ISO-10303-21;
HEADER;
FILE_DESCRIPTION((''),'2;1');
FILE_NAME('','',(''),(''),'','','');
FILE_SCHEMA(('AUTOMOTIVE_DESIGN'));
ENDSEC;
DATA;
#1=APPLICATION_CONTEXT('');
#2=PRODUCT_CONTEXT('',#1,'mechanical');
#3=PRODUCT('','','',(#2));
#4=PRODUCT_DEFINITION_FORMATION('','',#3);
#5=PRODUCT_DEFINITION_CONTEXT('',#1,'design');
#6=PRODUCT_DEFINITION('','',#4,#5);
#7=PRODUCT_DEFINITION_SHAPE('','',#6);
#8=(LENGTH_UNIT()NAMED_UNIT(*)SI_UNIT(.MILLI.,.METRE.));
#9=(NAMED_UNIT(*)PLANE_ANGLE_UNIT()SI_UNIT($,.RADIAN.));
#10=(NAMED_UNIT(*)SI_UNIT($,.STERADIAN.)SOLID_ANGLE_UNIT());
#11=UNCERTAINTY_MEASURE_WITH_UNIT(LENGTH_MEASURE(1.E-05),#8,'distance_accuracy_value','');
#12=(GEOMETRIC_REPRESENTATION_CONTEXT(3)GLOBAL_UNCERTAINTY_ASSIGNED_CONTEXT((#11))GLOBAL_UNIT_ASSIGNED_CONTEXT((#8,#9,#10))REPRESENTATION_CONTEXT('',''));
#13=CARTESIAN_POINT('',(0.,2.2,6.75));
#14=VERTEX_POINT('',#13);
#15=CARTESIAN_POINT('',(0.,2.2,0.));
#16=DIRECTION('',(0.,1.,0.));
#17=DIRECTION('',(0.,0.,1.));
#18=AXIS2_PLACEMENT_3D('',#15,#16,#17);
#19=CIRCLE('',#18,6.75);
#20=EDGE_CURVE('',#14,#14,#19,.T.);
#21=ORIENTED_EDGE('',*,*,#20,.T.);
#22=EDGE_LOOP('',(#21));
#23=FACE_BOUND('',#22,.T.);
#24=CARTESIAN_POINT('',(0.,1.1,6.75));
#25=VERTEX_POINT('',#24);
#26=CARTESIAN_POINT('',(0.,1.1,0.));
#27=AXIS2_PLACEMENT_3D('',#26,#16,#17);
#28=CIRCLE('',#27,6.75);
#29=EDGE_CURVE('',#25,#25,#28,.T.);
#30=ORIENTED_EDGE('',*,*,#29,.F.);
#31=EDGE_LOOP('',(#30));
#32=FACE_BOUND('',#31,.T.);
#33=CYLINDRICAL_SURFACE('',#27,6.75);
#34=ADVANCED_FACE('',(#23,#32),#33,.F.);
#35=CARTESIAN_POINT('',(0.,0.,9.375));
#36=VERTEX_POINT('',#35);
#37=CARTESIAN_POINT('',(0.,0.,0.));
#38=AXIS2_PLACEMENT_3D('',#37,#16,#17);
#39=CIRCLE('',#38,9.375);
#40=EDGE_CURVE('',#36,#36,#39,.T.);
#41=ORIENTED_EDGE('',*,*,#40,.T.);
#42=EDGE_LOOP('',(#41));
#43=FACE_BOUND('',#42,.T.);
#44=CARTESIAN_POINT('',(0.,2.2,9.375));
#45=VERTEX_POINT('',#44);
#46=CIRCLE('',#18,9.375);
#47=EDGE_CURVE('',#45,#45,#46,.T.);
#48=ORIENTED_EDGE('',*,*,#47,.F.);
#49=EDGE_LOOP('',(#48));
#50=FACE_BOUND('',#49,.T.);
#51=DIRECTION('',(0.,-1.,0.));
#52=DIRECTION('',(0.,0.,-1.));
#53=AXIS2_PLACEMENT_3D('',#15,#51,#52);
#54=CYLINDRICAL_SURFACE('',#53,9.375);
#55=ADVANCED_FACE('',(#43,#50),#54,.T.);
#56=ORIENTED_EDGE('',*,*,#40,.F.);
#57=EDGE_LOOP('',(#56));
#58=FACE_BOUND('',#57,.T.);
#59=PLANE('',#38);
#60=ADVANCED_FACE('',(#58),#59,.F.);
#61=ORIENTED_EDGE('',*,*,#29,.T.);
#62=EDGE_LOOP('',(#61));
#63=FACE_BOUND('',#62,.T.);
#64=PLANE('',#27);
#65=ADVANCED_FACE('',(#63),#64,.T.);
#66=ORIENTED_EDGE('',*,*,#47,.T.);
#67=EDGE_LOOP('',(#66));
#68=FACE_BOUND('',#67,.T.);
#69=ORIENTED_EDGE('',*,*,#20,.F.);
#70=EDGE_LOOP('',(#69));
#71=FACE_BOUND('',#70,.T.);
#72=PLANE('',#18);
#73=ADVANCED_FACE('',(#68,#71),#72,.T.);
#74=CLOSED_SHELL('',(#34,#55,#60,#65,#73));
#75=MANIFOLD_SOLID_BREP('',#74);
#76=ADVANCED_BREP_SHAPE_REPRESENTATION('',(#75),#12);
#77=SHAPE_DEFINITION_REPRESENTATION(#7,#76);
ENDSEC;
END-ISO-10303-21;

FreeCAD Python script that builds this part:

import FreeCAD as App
import Part
import Sketcher
Q = App.Units.Quantity

doc = App.newDocument("Part")
body = doc.addObject("PartDesign::Body", "Body")

# Sketch on XZ plane
sketch1 = body.newObject("Sketcher::SketchObject", "Sketch")
sketch1.AttachmentSupport = (doc.getObject("XZ_Plane"), [""])
sketch1.MapMode = "FlatFace"
sketch1.addGeometry(Part.Circle(App.Vector(0, 0, 0), App.Vector(0, 0, 1), 9.375), False)
sketch1.addConstraint([
    Sketcher.Constraint("Coincident", 0, 3, -1, 1),
    Sketcher.Constraint("Diameter", 0, Q("18.75 mm")),
])
pad1 = body.newObject("PartDesign::Pad", "Pad")
pad1.Profile = sketch1
pad1.Length = 2.2
pad1.Reversed = True

# Sketch on XZ plane
sketch2 = body.newObject("Sketcher::SketchObject", "Sketch001")
sketch2.AttachmentSupport = (doc.getObject("XZ_Plane"), [""])
sketch2.MapMode = "FlatFace"
sketch2.AttachmentOffset = App.Placement(App.Vector(0, 0, -2.2), App.Rotation())
sketch2.addGeometry(Part.Circle(App.Vector(0, 0, 0), App.Vector(0, 0, 1), 6.75), False)
sketch2.addConstraint([
    Sketcher.Constraint("Coincident", 0, 3, -1, 1),
    Sketcher.Constraint("Diameter", 0, Q("13.5 mm")),
])
pocket1 = body.newObject("PartDesign::Pocket", "Pocket")
pocket1.Profile = sketch2
pocket1.Length = 1.1
pocket1.Reversed = True

doc.recompute()
